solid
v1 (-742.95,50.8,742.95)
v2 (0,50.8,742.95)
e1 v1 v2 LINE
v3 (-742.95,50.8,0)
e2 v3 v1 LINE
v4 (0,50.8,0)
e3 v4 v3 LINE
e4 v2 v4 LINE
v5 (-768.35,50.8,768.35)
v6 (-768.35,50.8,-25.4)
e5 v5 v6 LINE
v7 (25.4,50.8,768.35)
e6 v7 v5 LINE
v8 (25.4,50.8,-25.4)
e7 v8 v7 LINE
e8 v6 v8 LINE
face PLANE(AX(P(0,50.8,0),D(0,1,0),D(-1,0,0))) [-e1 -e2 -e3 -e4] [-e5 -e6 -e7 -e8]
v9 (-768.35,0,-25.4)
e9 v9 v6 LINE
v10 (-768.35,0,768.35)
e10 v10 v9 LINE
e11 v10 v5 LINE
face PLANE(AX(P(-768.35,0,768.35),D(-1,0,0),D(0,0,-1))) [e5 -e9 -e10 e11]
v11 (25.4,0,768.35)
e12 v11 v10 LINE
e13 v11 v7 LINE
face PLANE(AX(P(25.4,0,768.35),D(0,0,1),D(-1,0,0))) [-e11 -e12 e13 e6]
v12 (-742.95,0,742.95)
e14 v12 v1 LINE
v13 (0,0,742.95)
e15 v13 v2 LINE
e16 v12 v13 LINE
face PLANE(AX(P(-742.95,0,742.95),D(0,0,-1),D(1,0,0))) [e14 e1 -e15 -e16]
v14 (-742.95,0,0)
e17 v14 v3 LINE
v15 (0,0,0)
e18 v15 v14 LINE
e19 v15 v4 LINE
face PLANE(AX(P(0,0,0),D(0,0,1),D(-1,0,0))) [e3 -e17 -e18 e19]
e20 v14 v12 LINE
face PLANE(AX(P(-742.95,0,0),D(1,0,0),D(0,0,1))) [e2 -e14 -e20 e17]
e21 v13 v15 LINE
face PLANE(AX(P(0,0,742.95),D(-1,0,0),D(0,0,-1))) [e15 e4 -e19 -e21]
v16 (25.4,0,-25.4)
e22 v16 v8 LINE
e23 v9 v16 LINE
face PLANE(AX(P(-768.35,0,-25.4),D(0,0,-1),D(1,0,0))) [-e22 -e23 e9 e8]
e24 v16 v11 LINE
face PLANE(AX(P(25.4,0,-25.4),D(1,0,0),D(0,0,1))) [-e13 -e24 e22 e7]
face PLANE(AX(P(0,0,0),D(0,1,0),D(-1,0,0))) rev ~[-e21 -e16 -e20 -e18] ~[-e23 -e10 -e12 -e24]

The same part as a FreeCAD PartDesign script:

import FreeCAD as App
import Part
import Sketcher
Q = App.Units.Quantity

doc = App.newDocument("Part")
body = doc.addObject("PartDesign::Body", "Body")

# Sketch on XZ plane
sketch1 = body.newObject("Sketcher::SketchObject", "Sketch")
sketch1.AttachmentSupport = (doc.getObject("XZ_Plane"), [""])
sketch1.MapMode = "FlatFace"
sketch1.addGeometry([
    Part.LineSegment(App.Vector(25, -25, 0), App.Vector(-768, -25, 0)),  # 0
    Part.LineSegment(App.Vector(-768, -25, 0), App.Vector(-768, 768, 0)),  # 1
    Part.LineSegment(App.Vector(-768, 768, 0), App.Vector(25, 768, 0)),  # 2
    Part.LineSegment(App.Vector(25, 768, 0), App.Vector(25, -25, 0)),  # 3
    Part.LineSegment(App.Vector(-743, 0, 0), App.Vector(0, 0, 0)),  # 4
    Part.LineSegment(App.Vector(0, 0, 0), App.Vector(0, 743, 0)),  # 5
    Part.LineSegment(App.Vector(0, 743, 0), App.Vector(-743, 743, 0)),  # 6
    Part.LineSegment(App.Vector(-743, 743, 0), App.Vector(-743, 0, 0)),  # 7
], False)
sketch1.addConstraint([
    Sketcher.Constraint("Coincident", 0, 2, 1, 1),
    Sketcher.Constraint("Coincident", 1, 2, 2, 1),
    Sketcher.Constraint("Coincident", 2, 2, 3, 1),
    Sketcher.Constraint("Coincident", 3, 2, 0, 1),
    Sketcher.Constraint("Coincident", 4, 2, 5, 1),
    Sketcher.Constraint("Coincident", 5, 2, 6, 1),
    Sketcher.Constraint("Coincident", 6, 2, 7, 1),
    Sketcher.Constraint("Coincident", 7, 2, 4, 1),
    Sketcher.Constraint("Horizontal", 0),
    Sketcher.Constraint("Vertical", 1),
    Sketcher.Constraint("Horizontal", 2),
    Sketcher.Constraint("Vertical", 3),
    Sketcher.Constraint("Horizontal", 4),
    Sketcher.Constraint("Vertical", 5),
    Sketcher.Constraint("Horizontal", 6),
    Sketcher.Constraint("Vertical", 7),
    Sketcher.Constraint("Coincident", 4, 2, -1, 1),
    Sketcher.Constraint("Equal", 2, 1),
    Sketcher.Constraint("Equal", 6, 5),
    Sketcher.Constraint("DistanceY", 0, 2, -1, 1, Q("1 in")),
    Sketcher.Constraint("DistanceX", -1, 1, 2, 2, Q("1 in")),
    Sketcher.Constraint("DistanceY", 5, 2, 2, 2, Q("1 in")),
    Sketcher.Constraint("DistanceX", 4, 1, 4, 2, Q("29.25 in")),
])
pad1 = body.newObject("PartDesign::Pad", "Pad")
pad1.Profile = sketch1
pad1.Length = Q("2 in")
pad1.Reversed = True

doc.recompute()
